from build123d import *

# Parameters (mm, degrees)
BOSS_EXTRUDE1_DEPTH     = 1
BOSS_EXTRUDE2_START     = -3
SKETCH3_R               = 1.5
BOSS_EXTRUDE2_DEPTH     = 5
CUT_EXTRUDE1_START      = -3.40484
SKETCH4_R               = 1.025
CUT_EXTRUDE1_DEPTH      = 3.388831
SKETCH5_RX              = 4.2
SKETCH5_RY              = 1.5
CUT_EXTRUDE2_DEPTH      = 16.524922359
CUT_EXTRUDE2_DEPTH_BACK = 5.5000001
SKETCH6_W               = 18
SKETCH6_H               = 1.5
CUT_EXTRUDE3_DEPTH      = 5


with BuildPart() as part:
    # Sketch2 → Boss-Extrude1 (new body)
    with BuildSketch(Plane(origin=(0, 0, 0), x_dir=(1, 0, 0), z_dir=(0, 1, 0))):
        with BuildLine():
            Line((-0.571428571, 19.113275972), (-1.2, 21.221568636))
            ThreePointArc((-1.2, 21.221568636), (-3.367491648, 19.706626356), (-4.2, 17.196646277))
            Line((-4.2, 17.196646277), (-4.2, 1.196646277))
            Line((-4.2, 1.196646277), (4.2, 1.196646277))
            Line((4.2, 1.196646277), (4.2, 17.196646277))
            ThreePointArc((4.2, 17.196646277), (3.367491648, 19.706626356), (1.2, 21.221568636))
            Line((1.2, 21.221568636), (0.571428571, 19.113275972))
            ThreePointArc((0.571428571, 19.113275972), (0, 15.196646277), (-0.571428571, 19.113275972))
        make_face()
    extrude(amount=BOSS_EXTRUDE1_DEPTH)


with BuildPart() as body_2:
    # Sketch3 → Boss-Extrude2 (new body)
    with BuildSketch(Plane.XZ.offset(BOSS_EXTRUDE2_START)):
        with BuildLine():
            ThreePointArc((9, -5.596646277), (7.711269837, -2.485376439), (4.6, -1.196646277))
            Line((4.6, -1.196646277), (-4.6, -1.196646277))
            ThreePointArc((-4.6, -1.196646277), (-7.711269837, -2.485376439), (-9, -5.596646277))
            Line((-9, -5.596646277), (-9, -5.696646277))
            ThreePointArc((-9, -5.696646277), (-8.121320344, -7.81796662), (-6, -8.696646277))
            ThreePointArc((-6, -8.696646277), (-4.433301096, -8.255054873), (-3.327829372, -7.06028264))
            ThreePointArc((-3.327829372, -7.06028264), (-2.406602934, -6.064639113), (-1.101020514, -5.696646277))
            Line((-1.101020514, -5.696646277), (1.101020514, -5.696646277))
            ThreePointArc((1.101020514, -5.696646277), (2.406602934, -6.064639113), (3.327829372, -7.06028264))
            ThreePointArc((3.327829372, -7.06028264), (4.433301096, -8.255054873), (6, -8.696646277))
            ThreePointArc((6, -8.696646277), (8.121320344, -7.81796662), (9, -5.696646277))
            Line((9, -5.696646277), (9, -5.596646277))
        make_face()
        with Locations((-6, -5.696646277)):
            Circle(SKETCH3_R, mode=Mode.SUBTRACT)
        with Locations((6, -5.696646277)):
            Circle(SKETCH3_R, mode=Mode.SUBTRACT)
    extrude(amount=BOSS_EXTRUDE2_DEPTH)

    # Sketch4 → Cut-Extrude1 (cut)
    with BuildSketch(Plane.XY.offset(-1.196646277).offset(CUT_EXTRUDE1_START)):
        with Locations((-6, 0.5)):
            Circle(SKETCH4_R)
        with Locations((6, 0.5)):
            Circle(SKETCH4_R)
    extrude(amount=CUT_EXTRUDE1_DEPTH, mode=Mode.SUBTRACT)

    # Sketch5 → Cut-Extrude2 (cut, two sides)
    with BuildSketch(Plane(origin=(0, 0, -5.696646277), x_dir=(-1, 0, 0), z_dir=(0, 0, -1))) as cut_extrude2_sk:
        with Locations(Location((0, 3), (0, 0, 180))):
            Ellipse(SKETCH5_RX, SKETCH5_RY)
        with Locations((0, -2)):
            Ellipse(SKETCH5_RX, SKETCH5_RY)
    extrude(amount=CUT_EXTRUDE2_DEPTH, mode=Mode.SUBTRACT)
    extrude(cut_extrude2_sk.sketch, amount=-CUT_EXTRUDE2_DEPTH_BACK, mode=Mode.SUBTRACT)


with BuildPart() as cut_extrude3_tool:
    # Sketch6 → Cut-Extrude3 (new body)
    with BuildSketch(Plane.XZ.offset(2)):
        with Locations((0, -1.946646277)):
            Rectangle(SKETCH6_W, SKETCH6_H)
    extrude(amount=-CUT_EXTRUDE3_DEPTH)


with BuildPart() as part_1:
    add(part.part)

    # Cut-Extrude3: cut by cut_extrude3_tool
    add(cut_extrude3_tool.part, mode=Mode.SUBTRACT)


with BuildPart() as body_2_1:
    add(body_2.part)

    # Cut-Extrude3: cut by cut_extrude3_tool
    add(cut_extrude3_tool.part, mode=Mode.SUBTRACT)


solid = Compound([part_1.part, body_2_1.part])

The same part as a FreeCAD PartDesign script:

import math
import FreeCAD as App
import Part
import Sketcher
Q = App.Units.Quantity

doc = App.newDocument("Part")
params = doc.addObject("Spreadsheet::Sheet", "Params")
for row, (alias, value) in enumerate([
    ("sketch1_radius", "2 mm"),
    ("sketch1_radius2", "4.2 mm"),
    ("sketch1_height", "16 mm"),
    ("pad1_length", "1 mm"),
    ("sketch2_diameter", "3 mm"),
    ("sketch2_radius", "3 mm"),
    ("sketch2_radius2", "4.4 mm"),
    ("sketch2_radius3", "2.5 mm"),
    ("sketch2_width", "9.2 mm"),
    ("pad2_length", "5 mm"),
    ("sketch3_diameter", "2.05 mm"),
    ("pocket1_length", "3.388831 mm"),
    ("sketch5_width", "18 mm"),
    ("sketch5_height", "1.5 mm"),
    ("pad3_length", "5 mm"),
], start=1):
    params.set(f"A{row}", alias)
    params.set(f"B{row}", "=" + value)
    params.setAlias(f"B{row}", alias)

body = doc.addObject("PartDesign::Body", "Body")

sketch1 = body.newObject("Sketcher::SketchObject", "Sketch")
sketch1.AttachmentSupport = (doc.getObject("XZ_Plane"), [""])
sketch1.MapMode = "FlatFace"
sketch1.addGeometry([
    Part.LineSegment(App.Vector(-0.6, -19.1, 0), App.Vector(-1.2, -21.2, 0)),
    Part.ArcOfCircle(Part.Circle(App.Vector(0, -17.2, 0), App.Vector(0, 0, 1), 4.2), math.radians(-180), math.radians(-107)),
    Part.LineSegment(App.Vector(-4.2, -17.2, 0), App.Vector(-4.2, -1.2, 0)),
    Part.LineSegment(App.Vector(-4.2, -1.2, 0), App.Vector(4.2, -1.2, 0)),
    Part.LineSegment(App.Vector(4.2, -1.2, 0), App.Vector(4.2, -17.2, 0)),
    Part.ArcOfCircle(Part.Circle(App.Vector(0, -17.2, 0), App.Vector(0, 0, 1), 4.2), math.radians(-73), math.radians(0)),
    Part.LineSegment(App.Vector(1.2, -21.2, 0), App.Vector(0.6, -19.1, 0)),
    Part.ArcOfCircle(Part.Circle(App.Vector(0, -17.2, 0), App.Vector(0, 0, 1), 2), math.radians(-73), math.radians(253)),
], False)
sketch1.addConstraint([
    Sketcher.Constraint("Coincident", 0, 2, 1, 2),
    Sketcher.Constraint("Tangent", 1, 1, 2, 1),
    Sketcher.Constraint("Coincident", 2, 2, 3, 1),
    Sketcher.Constraint("Coincident", 3, 2, 4, 1),
    Sketcher.Constraint("Tangent", 4, 2, 5, 2),
    Sketcher.Constraint("Coincident", 5, 1, 6, 1),
    Sketcher.Constraint("Coincident", 6, 2, 7, 1),
    Sketcher.Constraint("Coincident", 7, 2, 0, 1),
    Sketcher.Constraint("Vertical", 2),
    Sketcher.Constraint("Horizontal", 3),
    Sketcher.Constraint("Vertical", 4),
    Sketcher.Constraint("Coincident", 5, 3, 1, 3),
    Sketcher.Constraint("Coincident", 7, 3, 1, 3),
    Sketcher.Constraint("Equal", 1, 5),
    Sketcher.Constraint("Symmetric", 0, 2, 5, 1, -2),
    Sketcher.Constraint("Horizontal", 6, 2, 7, 2),
    Sketcher.Constraint("Radius", 7, Q("2 mm")),
    Sketcher.Constraint("Radius", 1, Q("4.2 mm")),
    Sketcher.Constraint("DistanceY", 2, 1, 2, 2, Q("16 mm")),
    Sketcher.Constraint("DistanceX", 1, 1, 0, 2, Q("3 mm")),
    Sketcher.Constraint("DistanceY", 0, 2, -1, 1, Q("21.221569 mm")),
    Sketcher.Constraint("DistanceX", -1, 1, 6, 2, Q("0.571429 mm")),
])
sketch1.setExpression("Constraints[16]", "Params.sketch1_radius")
sketch1.setExpression("Constraints[17]", "Params.sketch1_radius2")
sketch1.setExpression("Constraints[18]", "Params.sketch1_height")
pad1 = body.newObject("PartDesign::Pad", "Pad")
pad1.Profile = sketch1
pad1.setExpression("Length", "Params.pad1_length")
pad1.Reversed = True
body2 = doc.addObject("PartDesign::Body", "Body001")

sketch2 = body2.newObject("Sketcher::SketchObject", "Sketch001")
sketch2.AttachmentSupport = (doc.getObject("XZ_Plane001"), [""])
sketch2.MapMode = "FlatFace"
sketch2.AttachmentOffset = App.Placement(App.Vector(0, 0, -3), App.Rotation())
sketch2.addGeometry([
    Part.ArcOfCircle(Part.Circle(App.Vector(4.6, -5.6, 0), App.Vector(0, 0, 1), 4.4), math.radians(0), math.radians(90)),
    Part.LineSegment(App.Vector(4.6, -1.2, 0), App.Vector(-4.6, -1.2, 0)),
    Part.ArcOfCircle(Part.Circle(App.Vector(-4.6, -5.6, 0), App.Vector(0, 0, 1), 4.4), math.radians(90), math.radians(180)),
    Part.LineSegment(App.Vector(-9, -5.6, 0), App.Vector(-9, -5.7, 0)),
    Part.ArcOfCircle(Part.Circle(App.Vector(-6, -5.7, 0), App.Vector(0, 0, 1), 3), math.radians(180), math.radians(270)),
    Part.ArcOfCircle(Part.Circle(App.Vector(-6, -5.7, 0), App.Vector(0, 0, 1), 3), math.radians(-90), math.radians(-27)),
    Part.ArcOfCircle(Part.Circle(App.Vector(-1.1, -8.2, 0), App.Vector(0, 0, 1), 2.5), math.radians(90), math.radians(153)),
    Part.LineSegment(App.Vector(-1.1, -5.7, 0), App.Vector(1.1, -5.7, 0)),
    Part.ArcOfCircle(Part.Circle(App.Vector(1.1, -8.2, 0), App.Vector(0, 0, 1), 2.5), math.radians(27), math.radians(90)),
    Part.ArcOfCircle(Part.Circle(App.Vector(6, -5.7, 0), App.Vector(0, 0, 1), 3), math.radians(-153), math.radians(-90)),
    Part.ArcOfCircle(Part.Circle(App.Vector(6, -5.7, 0), App.Vector(0, 0, 1), 3), math.radians(-90), math.radians(0)),
    Part.LineSegment(App.Vector(9, -5.7, 0), App.Vector(9, -5.6, 0)),
    Part.Circle(App.Vector(-6, -5.7, 0), App.Vector(0, 0, 1), 1.5),
    Part.Circle(App.Vector(6, -5.7, 0), App.Vector(0, 0, 1), 1.5),
], False)
sketch2.addConstraint([
    Sketcher.Constraint("Tangent", 0, 2, 1, 1),
    Sketcher.Constraint("Tangent", 1, 2, 2, 1),
    Sketcher.Constraint("Tangent", 2, 2, 3, 1),
    Sketcher.Constraint("Tangent", 3, 2, 4, 1),
    Sketcher.Constraint("Tangent", 4, 2, 5, 1),
    Sketcher.Constraint("Tangent", 5, 2, 6, 2),
    Sketcher.Constraint("Tangent", 6, 1, 7, 1),
    Sketcher.Constraint("Tangent", 7, 2, 8, 2),
    Sketcher.Constraint("Tangent", 8, 1, 9, 1),
    Sketcher.Constraint("Tangent", 9, 2, 10, 1),
    Sketcher.Constraint("Tangent", 10, 2, 11, 1),
    Sketcher.Constraint("Tangent", 11, 2, 0, 1),
    Sketcher.Constraint("Horizontal", 1),
    Sketcher.Constraint("Vertical", 3),
    Sketcher.Constraint("Horizontal", 7),
    Sketcher.Constraint("Vertical", 11),
    Sketcher.Constraint("Coincident", 12, 3, 4, 3),
    Sketcher.Constraint("Coincident", 13, 3, 9, 3),
    Sketcher.Constraint("Equal", 0, 2),
    Sketcher.Constraint("Equal", 4, 5),
    Sketcher.Constraint("Equal", 6, 8),
    Sketcher.Constraint("Equal", 5, 9),
    Sketcher.Constraint("Equal", 9, 10),
    Sketcher.Constraint("Equal", 12, 13),
    Sketcher.Constraint("Symmetric", 4, 3, 9, 3, -2),
    Sketcher.Constraint("Horizontal", 3, 2, 6, 1),
    Sketcher.Constraint("Vertical", 12, 3, 4, 2),
    Sketcher.Constraint("Vertical", 13, 3, 9, 2),
    Sketcher.Constraint("Diameter", 12, Q("3 mm")),
    Sketcher.Constraint("Radius", 4, Q("3 mm")),
    Sketcher.Constraint("Radius", 0, Q("4.4 mm")),
    Sketcher.Constraint("Radius", 6, Q("2.5 mm")),
    Sketcher.Constraint("DistanceX", 1, 2, 1, 1, Q("9.2 mm")),
    Sketcher.Constraint("DistanceY", 3, 2, 3, 1, Q("0.1 mm")),
    Sketcher.Constraint("DistanceY", 0, 3, -1, 1, Q("5.596646 mm")),
])
sketch2.setExpression("Constraints[28]", "Params.sketch2_diameter")
sketch2.setExpression("Constraints[29]", "Params.sketch2_radius")
sketch2.setExpression("Constraints[30]", "Params.sketch2_radius2")
sketch2.setExpression("Constraints[31]", "Params.sketch2_radius3")
sketch2.setExpression("Constraints[32]", "Params.sketch2_width")
pad2 = body2.newObject("PartDesign::Pad", "Pad001")
pad2.Profile = sketch2
pad2.setExpression("Length", "Params.pad2_length")

sketch3 = body2.newObject("Sketcher::SketchObject", "Sketch002")
sketch3.AttachmentSupport = (doc.getObject("XY_Plane001"), [""])
sketch3.MapMode = "FlatFace"
sketch3.AttachmentOffset = App.Placement(App.Vector(0, 0, -4.601486), App.Rotation())
sketch3.addGeometry([
    Part.Circle(App.Vector(-6, 0.5, 0), App.Vector(0, 0, 1), 1),
    Part.Circle(App.Vector(6, 0.5, 0), App.Vector(0, 0, 1), 1),
], False)
sketch3.addConstraint([
    Sketcher.Constraint("Equal", 0, 1),
    Sketcher.Constraint("Symmetric", 0, 3, 1, 3, -2),
    Sketcher.Constraint("Diameter", 0, Q("2.05 mm")),
    Sketcher.Constraint("DistanceX", 0, 3, -1, 1, Q("6 mm")),
    Sketcher.Constraint("DistanceY", -1, 1, 0, 3, Q("0.5 mm")),
])
sketch3.setExpression("Constraints[2]", "Params.sketch3_diameter")
pocket1 = body2.newObject("PartDesign::Pocket", "Pocket")
pocket1.Profile = sketch3
pocket1.setExpression("Length", "Params.pocket1_length")
pocket1.Reversed = True

sketch4 = body2.newObject("Sketcher::SketchObject", "Sketch003")
sketch4.AttachmentSupport = (doc.getObject("XY_Plane001"), [""])
sketch4.MapMode = "FlatFace"
sketch4.AttachmentOffset = App.Placement(App.Vector(0, 0, -5.696646), App.Rotation())
sketch4.addGeometry([
    Part.Ellipse(App.Vector(4.2, 3, 0), App.Vector(0, 4.5, 0), App.Vector(0, 3, 0)),
    Part.Ellipse(App.Vector(-4.2, -2, 0), App.Vector(0, -3.5, 0), App.Vector(0, -2, 0)),
], False)
sketch4.addConstraint([
    Sketcher.Constraint("Block", 0),
    Sketcher.Constraint("Block", 1),
])
pocket2 = body2.newObject("PartDesign::Pocket", "Pocket001")
pocket2.Profile = sketch4
pocket2.Type = "ThroughAll"
pocket2.Midplane = True
body3 = doc.addObject("PartDesign::Body", "Body002")

sketch5 = body3.newObject("Sketcher::SketchObject", "Sketch004")
sketch5.AttachmentSupport = (doc.getObject("XZ_Plane002"), [""])
sketch5.MapMode = "FlatFace"
sketch5.AttachmentOffset = App.Placement(App.Vector(0, 0, 2), App.Rotation())
sketch5.addGeometry([
    Part.LineSegment(App.Vector(-9, -1.2, 0), App.Vector(-9, -2.7, 0)),
    Part.LineSegment(App.Vector(-9, -2.7, 0), App.Vector(9, -2.7, 0)),
    Part.LineSegment(App.Vector(9, -2.7, 0), App.Vector(9, -1.2, 0)),
    Part.LineSegment(App.Vector(9, -1.2, 0), App.Vector(-9, -1.2, 0)),
], False)
sketch5.addConstraint([
    Sketcher.Constraint("Coincident", 0, 2, 1, 1),
    Sketcher.Constraint("Coincident", 1, 2, 2, 1),
    Sketcher.Constraint("Coincident", 2, 2, 3, 1),
    Sketcher.Constraint("Coincident", 3, 2, 0, 1),
    Sketcher.Constraint("Vertical", 0),
    Sketcher.Constraint("Horizontal", 1),
    Sketcher.Constraint("Vertical", 2),
    Sketcher.Constraint("Horizontal", 3),
    Sketcher.Constraint("DistanceX", 1, 1, 1, 2, Q("18 mm")),
    Sketcher.Constraint("DistanceY", 0, 2, 0, 1, Q("1.5 mm")),
    Sketcher.Constraint("DistanceX", 0, 2, -1, 1, Q("9 mm")),
    Sketcher.Constraint("DistanceY", 0, 2, -1, 1, Q("2.696646 mm")),
])
sketch5.setExpression("Constraints[8]", "Params.sketch5_width")
sketch5.setExpression("Constraints[9]", "Params.sketch5_height")
pad3 = body3.newObject("PartDesign::Pad", "Pad002")
pad3.Profile = sketch5
pad3.setExpression("Length", "Params.pad3_length")
pad3.Reversed = True
doc.recompute()

body4 = doc.addObject("PartDesign::Body", "Body003")
body4.BaseFeature = body3
boolean = body.newObject("PartDesign::Boolean", "Boolean")
boolean.Type = "Cut"
boolean.addObjects([body4])
doc.recompute()

boolean2 = body2.newObject("PartDesign::Boolean", "Boolean001")
boolean2.Type = "Cut"
boolean2.addObjects([body3])

doc.recompute()
